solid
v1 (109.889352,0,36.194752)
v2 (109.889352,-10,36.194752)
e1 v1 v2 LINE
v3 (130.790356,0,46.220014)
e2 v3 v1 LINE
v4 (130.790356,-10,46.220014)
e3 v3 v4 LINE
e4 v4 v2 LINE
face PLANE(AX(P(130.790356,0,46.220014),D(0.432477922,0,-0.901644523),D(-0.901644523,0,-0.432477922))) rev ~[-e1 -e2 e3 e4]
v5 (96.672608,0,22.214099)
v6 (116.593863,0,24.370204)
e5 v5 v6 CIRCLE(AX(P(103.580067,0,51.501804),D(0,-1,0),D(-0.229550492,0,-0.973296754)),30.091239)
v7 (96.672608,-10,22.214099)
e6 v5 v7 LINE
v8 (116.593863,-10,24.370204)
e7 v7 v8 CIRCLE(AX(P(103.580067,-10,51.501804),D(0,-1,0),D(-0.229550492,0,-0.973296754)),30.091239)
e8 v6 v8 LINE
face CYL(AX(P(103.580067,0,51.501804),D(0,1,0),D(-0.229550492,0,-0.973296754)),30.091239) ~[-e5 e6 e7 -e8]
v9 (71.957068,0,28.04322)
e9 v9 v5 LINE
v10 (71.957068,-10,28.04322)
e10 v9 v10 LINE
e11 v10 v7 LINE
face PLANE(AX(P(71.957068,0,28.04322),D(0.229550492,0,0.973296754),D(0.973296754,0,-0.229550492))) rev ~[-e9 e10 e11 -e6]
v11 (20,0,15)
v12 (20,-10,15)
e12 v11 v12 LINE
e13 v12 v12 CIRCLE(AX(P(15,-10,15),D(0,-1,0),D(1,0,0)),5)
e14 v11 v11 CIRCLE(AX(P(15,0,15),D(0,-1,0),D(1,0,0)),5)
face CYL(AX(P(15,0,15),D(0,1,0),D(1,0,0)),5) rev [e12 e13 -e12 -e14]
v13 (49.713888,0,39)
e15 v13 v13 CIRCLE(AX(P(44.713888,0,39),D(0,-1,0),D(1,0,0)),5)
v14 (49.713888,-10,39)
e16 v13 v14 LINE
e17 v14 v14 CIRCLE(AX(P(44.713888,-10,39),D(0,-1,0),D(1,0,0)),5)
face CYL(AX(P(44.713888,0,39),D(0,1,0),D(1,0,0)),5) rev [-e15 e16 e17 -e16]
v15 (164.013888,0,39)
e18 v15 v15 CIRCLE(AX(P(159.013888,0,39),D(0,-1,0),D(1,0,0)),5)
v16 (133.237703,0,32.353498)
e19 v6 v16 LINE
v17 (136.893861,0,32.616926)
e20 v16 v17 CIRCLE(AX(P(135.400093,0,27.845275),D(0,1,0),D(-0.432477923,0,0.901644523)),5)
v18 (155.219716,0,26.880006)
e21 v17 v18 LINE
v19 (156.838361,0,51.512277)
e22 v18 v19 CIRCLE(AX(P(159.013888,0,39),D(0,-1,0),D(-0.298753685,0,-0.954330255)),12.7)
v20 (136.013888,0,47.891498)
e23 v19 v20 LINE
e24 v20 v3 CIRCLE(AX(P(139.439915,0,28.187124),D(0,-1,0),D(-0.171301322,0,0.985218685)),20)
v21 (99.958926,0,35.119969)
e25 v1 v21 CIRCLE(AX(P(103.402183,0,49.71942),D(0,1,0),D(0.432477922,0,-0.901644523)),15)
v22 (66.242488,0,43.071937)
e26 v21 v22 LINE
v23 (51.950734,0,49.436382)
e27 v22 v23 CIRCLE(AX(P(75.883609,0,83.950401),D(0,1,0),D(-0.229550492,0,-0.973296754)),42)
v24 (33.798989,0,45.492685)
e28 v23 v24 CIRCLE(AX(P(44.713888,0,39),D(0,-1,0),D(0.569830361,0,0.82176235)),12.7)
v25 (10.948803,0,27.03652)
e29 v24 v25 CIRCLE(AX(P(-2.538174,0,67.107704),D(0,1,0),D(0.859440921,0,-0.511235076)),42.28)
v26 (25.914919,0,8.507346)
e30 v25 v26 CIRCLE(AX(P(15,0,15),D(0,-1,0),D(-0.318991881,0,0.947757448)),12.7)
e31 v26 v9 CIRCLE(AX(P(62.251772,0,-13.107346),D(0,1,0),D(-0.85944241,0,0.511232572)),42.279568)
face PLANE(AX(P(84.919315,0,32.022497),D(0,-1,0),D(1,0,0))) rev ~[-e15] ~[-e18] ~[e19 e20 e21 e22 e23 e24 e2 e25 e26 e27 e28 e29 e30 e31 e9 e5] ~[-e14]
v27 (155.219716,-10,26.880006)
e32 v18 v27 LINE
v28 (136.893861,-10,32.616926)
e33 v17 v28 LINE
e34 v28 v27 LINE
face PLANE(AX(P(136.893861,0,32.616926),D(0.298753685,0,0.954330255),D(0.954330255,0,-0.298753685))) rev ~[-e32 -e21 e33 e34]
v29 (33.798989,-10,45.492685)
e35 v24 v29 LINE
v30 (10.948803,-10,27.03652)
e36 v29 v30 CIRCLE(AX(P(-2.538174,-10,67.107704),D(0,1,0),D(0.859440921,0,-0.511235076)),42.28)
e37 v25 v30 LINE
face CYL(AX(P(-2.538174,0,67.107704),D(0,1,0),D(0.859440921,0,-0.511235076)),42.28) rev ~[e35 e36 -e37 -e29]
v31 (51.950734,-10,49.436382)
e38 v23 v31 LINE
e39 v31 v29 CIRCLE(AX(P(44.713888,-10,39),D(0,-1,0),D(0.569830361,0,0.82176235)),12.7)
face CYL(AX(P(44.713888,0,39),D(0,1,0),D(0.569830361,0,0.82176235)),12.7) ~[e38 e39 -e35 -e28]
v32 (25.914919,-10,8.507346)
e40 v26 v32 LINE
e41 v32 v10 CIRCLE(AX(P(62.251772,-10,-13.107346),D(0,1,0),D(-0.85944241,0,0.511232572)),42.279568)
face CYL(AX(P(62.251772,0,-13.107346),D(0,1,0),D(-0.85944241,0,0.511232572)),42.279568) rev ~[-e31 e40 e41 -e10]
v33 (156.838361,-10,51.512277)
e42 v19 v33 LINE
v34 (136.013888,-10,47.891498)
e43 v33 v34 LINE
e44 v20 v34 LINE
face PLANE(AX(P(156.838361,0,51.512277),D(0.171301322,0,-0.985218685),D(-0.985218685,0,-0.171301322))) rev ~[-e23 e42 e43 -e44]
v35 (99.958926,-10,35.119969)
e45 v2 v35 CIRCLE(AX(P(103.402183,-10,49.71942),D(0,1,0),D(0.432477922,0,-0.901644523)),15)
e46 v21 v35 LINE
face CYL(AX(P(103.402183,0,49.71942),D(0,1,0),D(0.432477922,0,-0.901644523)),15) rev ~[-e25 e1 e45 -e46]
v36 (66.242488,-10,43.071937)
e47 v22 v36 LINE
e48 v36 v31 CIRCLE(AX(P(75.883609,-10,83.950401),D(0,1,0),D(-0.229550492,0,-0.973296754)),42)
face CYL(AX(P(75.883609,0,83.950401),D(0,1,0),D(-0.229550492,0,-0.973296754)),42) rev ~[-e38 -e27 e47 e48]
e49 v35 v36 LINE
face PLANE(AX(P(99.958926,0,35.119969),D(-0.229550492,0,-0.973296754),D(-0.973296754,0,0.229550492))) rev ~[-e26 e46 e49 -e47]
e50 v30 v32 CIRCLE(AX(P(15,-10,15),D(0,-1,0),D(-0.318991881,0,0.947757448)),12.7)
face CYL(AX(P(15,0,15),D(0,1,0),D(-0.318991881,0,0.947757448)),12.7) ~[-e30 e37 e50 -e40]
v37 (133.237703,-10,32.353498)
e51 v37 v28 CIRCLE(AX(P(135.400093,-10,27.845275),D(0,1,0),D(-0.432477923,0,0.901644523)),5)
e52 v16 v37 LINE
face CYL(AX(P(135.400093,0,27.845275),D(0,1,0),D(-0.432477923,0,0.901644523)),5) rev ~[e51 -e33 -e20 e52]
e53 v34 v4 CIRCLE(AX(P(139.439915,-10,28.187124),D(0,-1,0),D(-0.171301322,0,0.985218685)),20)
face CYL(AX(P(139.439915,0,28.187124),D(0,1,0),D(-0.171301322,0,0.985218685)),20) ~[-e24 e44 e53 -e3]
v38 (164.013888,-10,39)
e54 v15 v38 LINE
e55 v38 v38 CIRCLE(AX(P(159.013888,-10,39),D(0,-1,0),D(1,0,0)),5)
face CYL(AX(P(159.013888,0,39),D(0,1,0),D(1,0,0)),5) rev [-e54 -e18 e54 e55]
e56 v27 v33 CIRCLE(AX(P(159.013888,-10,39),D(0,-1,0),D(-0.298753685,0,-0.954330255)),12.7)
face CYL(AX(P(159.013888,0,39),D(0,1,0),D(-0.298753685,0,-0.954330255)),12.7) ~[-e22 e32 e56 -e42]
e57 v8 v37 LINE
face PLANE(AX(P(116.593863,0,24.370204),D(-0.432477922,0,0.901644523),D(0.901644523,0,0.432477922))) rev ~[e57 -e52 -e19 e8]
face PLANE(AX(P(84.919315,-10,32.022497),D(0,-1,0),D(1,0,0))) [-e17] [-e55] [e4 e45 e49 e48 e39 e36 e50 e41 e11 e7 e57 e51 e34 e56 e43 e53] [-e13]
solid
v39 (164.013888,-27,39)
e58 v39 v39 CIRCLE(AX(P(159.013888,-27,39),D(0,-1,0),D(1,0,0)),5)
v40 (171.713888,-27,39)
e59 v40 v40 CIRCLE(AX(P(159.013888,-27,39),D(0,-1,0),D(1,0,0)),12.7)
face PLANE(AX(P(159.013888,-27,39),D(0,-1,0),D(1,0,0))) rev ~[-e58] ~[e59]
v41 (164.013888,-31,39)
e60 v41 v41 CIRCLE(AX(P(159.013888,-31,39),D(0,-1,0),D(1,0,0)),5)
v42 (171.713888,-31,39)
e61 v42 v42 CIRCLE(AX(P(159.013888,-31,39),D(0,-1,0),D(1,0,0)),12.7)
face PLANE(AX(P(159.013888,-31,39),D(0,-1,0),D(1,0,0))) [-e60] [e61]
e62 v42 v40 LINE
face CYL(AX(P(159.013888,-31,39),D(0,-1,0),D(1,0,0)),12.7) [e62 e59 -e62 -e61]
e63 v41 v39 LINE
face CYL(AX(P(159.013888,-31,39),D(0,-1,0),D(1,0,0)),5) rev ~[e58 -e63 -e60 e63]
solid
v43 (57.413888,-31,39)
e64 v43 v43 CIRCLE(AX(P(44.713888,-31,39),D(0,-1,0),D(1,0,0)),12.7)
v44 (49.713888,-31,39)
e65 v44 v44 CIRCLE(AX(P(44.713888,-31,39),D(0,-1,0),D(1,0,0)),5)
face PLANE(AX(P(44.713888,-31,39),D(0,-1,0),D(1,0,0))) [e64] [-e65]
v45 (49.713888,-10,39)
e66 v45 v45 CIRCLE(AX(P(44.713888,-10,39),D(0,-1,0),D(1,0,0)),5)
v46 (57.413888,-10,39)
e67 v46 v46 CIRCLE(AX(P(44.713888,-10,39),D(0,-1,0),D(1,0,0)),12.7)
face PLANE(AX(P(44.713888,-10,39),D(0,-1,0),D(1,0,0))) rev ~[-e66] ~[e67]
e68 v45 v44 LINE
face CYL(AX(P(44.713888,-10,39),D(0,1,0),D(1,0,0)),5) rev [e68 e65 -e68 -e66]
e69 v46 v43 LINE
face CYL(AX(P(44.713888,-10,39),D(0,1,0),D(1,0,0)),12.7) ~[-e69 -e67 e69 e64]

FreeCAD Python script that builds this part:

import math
import FreeCAD as App
import Part
import Sketcher
from FreeCAD import Vector

doc = App.newDocument("Part")
body = doc.addObject("PartDesign::Body", "Body")

sketch1 = body.newObject("Sketcher::SketchObject", "Sketch")
sketch1.AttachmentSupport = (doc.getObject("XZ_Plane"), [""])
sketch1.MapMode = "FlatFace"
sketch1.addGeometry(Part.LineSegment(Vector(136.9, 32.6, 0), Vector(155.2, 26.9, 0)), False)
sketch1.addGeometry(Part.ArcOfCircle(Part.Circle(Vector(159, 39, 0), Vector(0, 0, 1), 12.7), math.radians(-107), math.radians(100)), False)
sketch1.addGeometry(Part.LineSegment(Vector(156.8, 51.5, 0), Vector(136, 47.9, 0)), False)
sketch1.addGeometry(Part.ArcOfCircle(Part.Circle(Vector(139.4, 28.2, 0), Vector(0, 0, 1), 20), math.radians(99.86), math.radians(115.62)), False)
sketch1.addGeometry(Part.LineSegment(Vector(130.8, 46.2, 0), Vector(109.9, 36.2, 0)), False)
sketch1.addGeometry(Part.ArcOfCircle(Part.Circle(Vector(103.4, 49.7, 0), Vector(0, 0, 1), 15), math.radians(-103), math.radians(-64)), False)
sketch1.addGeometry(Part.LineSegment(Vector(100, 35.1, 0), Vector(66.2, 43.1, 0)), False)
sketch1.addGeometry(Part.ArcOfCircle(Part.Circle(Vector(75.9, 84, 0), Vector(0, 0, 1), 42), math.radians(-125), math.radians(-103)), False)
sketch1.addGeometry(Part.ArcOfCircle(Part.Circle(Vector(44.7, 39, 0), Vector(0, 0, 1), 12.7), math.radians(55), math.radians(149)), False)
sketch1.addGeometry(Part.ArcOfCircle(Part.Circle(Vector(-2.5, 67.1, 0), Vector(0, 0, 1), 42.3), math.radians(-71), math.radians(-31)), False)
sketch1.addGeometry(Part.ArcOfCircle(Part.Circle(Vector(15, 15, 0), Vector(0, 0, 1), 12.7), math.radians(109), math.radians(329)), False)
sketch1.addGeometry(Part.ArcOfCircle(Part.Circle(Vector(62.3, -13.1, 0), Vector(0, 0, 1), 42.3), math.radians(77), math.radians(149)), False)
sketch1.addGeometry(Part.LineSegment(Vector(72, 28, 0), Vector(96.7, 22.2, 0)), False)
sketch1.addGeometry(Part.ArcOfCircle(Part.Circle(Vector(103.6, 51.5, 0), Vector(0, 0, 1), 30.1), math.radians(-103), math.radians(-64)), False)
sketch1.addGeometry(Part.LineSegment(Vector(116.6, 24.4, 0), Vector(133.2, 32.4, 0)), False)
sketch1.addGeometry(Part.ArcOfCircle(Part.Circle(Vector(135.4, 27.8, 0), Vector(0, 0, 1), 5), math.radians(73), math.radians(116)), False)
sketch1.addGeometry(Part.Circle(Vector(15, 15, 0), Vector(0, 0, 1), 5), False)
sketch1.addGeometry(Part.Circle(Vector(44.7, 39, 0), Vector(0, 0, 1), 5), False)
sketch1.addGeometry(Part.Circle(Vector(159, 39, 0), Vector(0, 0, 1), 5), False)
sketch1.addConstraint(Sketcher.Constraint("Tangent", 0, 2, 1, 1))
sketch1.addConstraint(Sketcher.Constraint("Tangent", 1, 2, 2, 1))
sketch1.addConstraint(Sketcher.Constraint("Tangent", 2, 2, 3, 1))
sketch1.addConstraint(Sketcher.Constraint("Tangent", 3, 2, 4, 1))
sketch1.addConstraint(Sketcher.Constraint("Tangent", 4, 2, 5, 2))
sketch1.addConstraint(Sketcher.Constraint("Tangent", 5, 1, 6, 1))
sketch1.addConstraint(Sketcher.Constraint("Tangent", 6, 2, 7, 2))
sketch1.addConstraint(Sketcher.Constraint("Tangent", 7, 1, 8, 1))
sketch1.addConstraint(Sketcher.Constraint("Tangent", 8, 2, 9, 2))
sketch1.addConstraint(Sketcher.Constraint("Tangent", 9, 1, 10, 1))
sketch1.addConstraint(Sketcher.Constraint("Tangent", 10, 2, 11, 2))
sketch1.addConstraint(Sketcher.Constraint("Tangent", 11, 1, 12, 1))
sketch1.addConstraint(Sketcher.Constraint("Tangent", 12, 2, 13, 1))
sketch1.addConstraint(Sketcher.Constraint("Tangent", 13, 2, 14, 1))
sketch1.addConstraint(Sketcher.Constraint("Tangent", 14, 2, 15, 2))
sketch1.addConstraint(Sketcher.Constraint("Tangent", 15, 1, 0, 1))
sketch1.addConstraint(Sketcher.Constraint("Coincident", 16, 3, 10, 3))
sketch1.addConstraint(Sketcher.Constraint("Coincident", 17, 3, 8, 3))
sketch1.addConstraint(Sketcher.Constraint("Coincident", 18, 3, 1, 3))
sketch1.addConstraint(Sketcher.Constraint("Equal", 1, 8))
sketch1.addConstraint(Sketcher.Constraint("Equal", 8, 10))
sketch1.addConstraint(Sketcher.Constraint("Equal", 15, 16))
sketch1.addConstraint(Sketcher.Constraint("Equal", 16, 17))
sketch1.addConstraint(Sketcher.Constraint("Equal", 17, 18))
sketch1.addConstraint(Sketcher.Constraint("Parallel", 6, 12))
sketch1.addConstraint(Sketcher.Constraint("Parallel", 4, 14))
sketch1.addConstraint(Sketcher.Constraint("Horizontal", 1, 3, 8, 3))
sketch1.addConstraint(Sketcher.Constraint("Diameter", 16, 10.0))
sketch1.addConstraint(Sketcher.Constraint("Radius", 3, 20.0))
sketch1.addConstraint(Sketcher.Constraint("Radius", 5, 15.0))
sketch1.addConstraint(Sketcher.Constraint("Radius", 7, 42.0))
sketch1.addConstraint(Sketcher.Constraint("Radius", 1, 12.7))
sketch1.addConstraint(Sketcher.Constraint("Radius", 9, 42.28))
sketch1.addConstraint(Sketcher.Constraint("DistanceY", -1, 1, 1, 3, 39.0))
sketch1.addConstraint(Sketcher.Constraint("DistanceX", -1, 1, 10, 3, 15.0))
sketch1.addConstraint(Sketcher.Constraint("DistanceY", -1, 1, 10, 3, 15.0))
sketch1.addConstraint(Sketcher.Constraint("DistanceX", 2, 2, 1, 3, 23.0))
sketch1.addConstraint(Sketcher.Constraint("DistanceX", 8, 3, 1, 3, 114.3))
sketch1.addConstraint(Sketcher.Constraint("Radius", 13, 30.091239))
sketch1.addConstraint(Sketcher.Constraint("Radius", 11, 42.279568))
sketch1.addConstraint(Sketcher.Constraint("DistanceY", 14, 2, 2, 2, 15.538))
sketch1.addConstraint(Sketcher.Constraint("DistanceY", -1, 1, 7, 3, 83.950401))
sketch1.addConstraint(Sketcher.Constraint("DistanceY", -1, 1, 12, 2, 22.214099))
sketch1.addConstraint(Sketcher.Constraint("DistanceX", 3, 3, 0, 2, 15.779802))
sketch1.addConstraint(Sketcher.Constraint("DistanceX", 8, 3, 6, 2, 21.5286))
sketch1.addConstraint(Sketcher.Constraint("DistanceX", 8, 2, 8, 3, 10.9149))
sketch1.addConstraint(Sketcher.Constraint("Distance", 4, 23.18098))
sketch1.addConstraint(Sketcher.Constraint("DistanceY", -1, 1, 5, 3, 49.71942))
pad1 = body.newObject("PartDesign::Pad", "Pad")
pad1.Profile = sketch1
pad1.Length = 10
body2 = doc.addObject("PartDesign::Body", "Body001")

sketch2 = body2.newObject("Sketcher::SketchObject", "Sketch001")
sketch2.AttachmentSupport = (doc.getObject("XZ_Plane001"), [""])
sketch2.MapMode = "FlatFace"
sketch2.AttachmentOffset = App.Placement(Vector(0, 0, 10), App.Rotation())
sketch2.addGeometry(Part.Circle(Vector(45, 39, 0), Vector(0, 0, 1), 13), False)
sketch2.addGeometry(Part.Circle(Vector(45, 39, 0), Vector(0, 0, 1), 5), False)
sketch2.addConstraint(Sketcher.Constraint("Coincident", 1, 3, 0, 3))
sketch2.addConstraint(Sketcher.Constraint("Diameter", 1, 10.0))
sketch2.addConstraint(Sketcher.Constraint("Diameter", 0, 25.4))
sketch2.addConstraint(Sketcher.Constraint("DistanceY", -1, 1, 0, 3, 39.0))
sketch2.addConstraint(Sketcher.Constraint("DistanceX", -1, 1, 0, 3, 44.713888))
pad2 = body2.newObject("PartDesign::Pad", "Pad001")
pad2.Profile = sketch2
pad2.Length = 21
body3 = doc.addObject("PartDesign::Body", "Body002")

sketch3 = body3.newObject("Sketcher::SketchObject", "Sketch002")
sketch3.AttachmentSupport = (doc.getObject("XZ_Plane002"), [""])
sketch3.MapMode = "FlatFace"
sketch3.AttachmentOffset = App.Placement(Vector(0, 0, 31), App.Rotation())
sketch3.addGeometry(Part.Circle(Vector(159, 39, 0), Vector(0, 0, 1), 13), False)
sketch3.addGeometry(Part.Circle(Vector(159, 39, 0), Vector(0, 0, 1), 5), False)
sketch3.addConstraint(Sketcher.Constraint("Coincident", 1, 3, 0, 3))
sketch3.addConstraint(Sketcher.Constraint("Diameter", 1, 10.0))
sketch3.addConstraint(Sketcher.Constraint("Diameter", 0, 25.4))
sketch3.addConstraint(Sketcher.Constraint("DistanceY", -1, 1, 0, 3, 39.0))
sketch3.addConstraint(Sketcher.Constraint("DistanceX", -1, 1, 0, 3, 159.013888))
pad3 = body3.newObject("PartDesign::Pad", "Pad002")
pad3.Profile = sketch3
pad3.Length = 4
pad3.Reversed = True

doc.recompute()
